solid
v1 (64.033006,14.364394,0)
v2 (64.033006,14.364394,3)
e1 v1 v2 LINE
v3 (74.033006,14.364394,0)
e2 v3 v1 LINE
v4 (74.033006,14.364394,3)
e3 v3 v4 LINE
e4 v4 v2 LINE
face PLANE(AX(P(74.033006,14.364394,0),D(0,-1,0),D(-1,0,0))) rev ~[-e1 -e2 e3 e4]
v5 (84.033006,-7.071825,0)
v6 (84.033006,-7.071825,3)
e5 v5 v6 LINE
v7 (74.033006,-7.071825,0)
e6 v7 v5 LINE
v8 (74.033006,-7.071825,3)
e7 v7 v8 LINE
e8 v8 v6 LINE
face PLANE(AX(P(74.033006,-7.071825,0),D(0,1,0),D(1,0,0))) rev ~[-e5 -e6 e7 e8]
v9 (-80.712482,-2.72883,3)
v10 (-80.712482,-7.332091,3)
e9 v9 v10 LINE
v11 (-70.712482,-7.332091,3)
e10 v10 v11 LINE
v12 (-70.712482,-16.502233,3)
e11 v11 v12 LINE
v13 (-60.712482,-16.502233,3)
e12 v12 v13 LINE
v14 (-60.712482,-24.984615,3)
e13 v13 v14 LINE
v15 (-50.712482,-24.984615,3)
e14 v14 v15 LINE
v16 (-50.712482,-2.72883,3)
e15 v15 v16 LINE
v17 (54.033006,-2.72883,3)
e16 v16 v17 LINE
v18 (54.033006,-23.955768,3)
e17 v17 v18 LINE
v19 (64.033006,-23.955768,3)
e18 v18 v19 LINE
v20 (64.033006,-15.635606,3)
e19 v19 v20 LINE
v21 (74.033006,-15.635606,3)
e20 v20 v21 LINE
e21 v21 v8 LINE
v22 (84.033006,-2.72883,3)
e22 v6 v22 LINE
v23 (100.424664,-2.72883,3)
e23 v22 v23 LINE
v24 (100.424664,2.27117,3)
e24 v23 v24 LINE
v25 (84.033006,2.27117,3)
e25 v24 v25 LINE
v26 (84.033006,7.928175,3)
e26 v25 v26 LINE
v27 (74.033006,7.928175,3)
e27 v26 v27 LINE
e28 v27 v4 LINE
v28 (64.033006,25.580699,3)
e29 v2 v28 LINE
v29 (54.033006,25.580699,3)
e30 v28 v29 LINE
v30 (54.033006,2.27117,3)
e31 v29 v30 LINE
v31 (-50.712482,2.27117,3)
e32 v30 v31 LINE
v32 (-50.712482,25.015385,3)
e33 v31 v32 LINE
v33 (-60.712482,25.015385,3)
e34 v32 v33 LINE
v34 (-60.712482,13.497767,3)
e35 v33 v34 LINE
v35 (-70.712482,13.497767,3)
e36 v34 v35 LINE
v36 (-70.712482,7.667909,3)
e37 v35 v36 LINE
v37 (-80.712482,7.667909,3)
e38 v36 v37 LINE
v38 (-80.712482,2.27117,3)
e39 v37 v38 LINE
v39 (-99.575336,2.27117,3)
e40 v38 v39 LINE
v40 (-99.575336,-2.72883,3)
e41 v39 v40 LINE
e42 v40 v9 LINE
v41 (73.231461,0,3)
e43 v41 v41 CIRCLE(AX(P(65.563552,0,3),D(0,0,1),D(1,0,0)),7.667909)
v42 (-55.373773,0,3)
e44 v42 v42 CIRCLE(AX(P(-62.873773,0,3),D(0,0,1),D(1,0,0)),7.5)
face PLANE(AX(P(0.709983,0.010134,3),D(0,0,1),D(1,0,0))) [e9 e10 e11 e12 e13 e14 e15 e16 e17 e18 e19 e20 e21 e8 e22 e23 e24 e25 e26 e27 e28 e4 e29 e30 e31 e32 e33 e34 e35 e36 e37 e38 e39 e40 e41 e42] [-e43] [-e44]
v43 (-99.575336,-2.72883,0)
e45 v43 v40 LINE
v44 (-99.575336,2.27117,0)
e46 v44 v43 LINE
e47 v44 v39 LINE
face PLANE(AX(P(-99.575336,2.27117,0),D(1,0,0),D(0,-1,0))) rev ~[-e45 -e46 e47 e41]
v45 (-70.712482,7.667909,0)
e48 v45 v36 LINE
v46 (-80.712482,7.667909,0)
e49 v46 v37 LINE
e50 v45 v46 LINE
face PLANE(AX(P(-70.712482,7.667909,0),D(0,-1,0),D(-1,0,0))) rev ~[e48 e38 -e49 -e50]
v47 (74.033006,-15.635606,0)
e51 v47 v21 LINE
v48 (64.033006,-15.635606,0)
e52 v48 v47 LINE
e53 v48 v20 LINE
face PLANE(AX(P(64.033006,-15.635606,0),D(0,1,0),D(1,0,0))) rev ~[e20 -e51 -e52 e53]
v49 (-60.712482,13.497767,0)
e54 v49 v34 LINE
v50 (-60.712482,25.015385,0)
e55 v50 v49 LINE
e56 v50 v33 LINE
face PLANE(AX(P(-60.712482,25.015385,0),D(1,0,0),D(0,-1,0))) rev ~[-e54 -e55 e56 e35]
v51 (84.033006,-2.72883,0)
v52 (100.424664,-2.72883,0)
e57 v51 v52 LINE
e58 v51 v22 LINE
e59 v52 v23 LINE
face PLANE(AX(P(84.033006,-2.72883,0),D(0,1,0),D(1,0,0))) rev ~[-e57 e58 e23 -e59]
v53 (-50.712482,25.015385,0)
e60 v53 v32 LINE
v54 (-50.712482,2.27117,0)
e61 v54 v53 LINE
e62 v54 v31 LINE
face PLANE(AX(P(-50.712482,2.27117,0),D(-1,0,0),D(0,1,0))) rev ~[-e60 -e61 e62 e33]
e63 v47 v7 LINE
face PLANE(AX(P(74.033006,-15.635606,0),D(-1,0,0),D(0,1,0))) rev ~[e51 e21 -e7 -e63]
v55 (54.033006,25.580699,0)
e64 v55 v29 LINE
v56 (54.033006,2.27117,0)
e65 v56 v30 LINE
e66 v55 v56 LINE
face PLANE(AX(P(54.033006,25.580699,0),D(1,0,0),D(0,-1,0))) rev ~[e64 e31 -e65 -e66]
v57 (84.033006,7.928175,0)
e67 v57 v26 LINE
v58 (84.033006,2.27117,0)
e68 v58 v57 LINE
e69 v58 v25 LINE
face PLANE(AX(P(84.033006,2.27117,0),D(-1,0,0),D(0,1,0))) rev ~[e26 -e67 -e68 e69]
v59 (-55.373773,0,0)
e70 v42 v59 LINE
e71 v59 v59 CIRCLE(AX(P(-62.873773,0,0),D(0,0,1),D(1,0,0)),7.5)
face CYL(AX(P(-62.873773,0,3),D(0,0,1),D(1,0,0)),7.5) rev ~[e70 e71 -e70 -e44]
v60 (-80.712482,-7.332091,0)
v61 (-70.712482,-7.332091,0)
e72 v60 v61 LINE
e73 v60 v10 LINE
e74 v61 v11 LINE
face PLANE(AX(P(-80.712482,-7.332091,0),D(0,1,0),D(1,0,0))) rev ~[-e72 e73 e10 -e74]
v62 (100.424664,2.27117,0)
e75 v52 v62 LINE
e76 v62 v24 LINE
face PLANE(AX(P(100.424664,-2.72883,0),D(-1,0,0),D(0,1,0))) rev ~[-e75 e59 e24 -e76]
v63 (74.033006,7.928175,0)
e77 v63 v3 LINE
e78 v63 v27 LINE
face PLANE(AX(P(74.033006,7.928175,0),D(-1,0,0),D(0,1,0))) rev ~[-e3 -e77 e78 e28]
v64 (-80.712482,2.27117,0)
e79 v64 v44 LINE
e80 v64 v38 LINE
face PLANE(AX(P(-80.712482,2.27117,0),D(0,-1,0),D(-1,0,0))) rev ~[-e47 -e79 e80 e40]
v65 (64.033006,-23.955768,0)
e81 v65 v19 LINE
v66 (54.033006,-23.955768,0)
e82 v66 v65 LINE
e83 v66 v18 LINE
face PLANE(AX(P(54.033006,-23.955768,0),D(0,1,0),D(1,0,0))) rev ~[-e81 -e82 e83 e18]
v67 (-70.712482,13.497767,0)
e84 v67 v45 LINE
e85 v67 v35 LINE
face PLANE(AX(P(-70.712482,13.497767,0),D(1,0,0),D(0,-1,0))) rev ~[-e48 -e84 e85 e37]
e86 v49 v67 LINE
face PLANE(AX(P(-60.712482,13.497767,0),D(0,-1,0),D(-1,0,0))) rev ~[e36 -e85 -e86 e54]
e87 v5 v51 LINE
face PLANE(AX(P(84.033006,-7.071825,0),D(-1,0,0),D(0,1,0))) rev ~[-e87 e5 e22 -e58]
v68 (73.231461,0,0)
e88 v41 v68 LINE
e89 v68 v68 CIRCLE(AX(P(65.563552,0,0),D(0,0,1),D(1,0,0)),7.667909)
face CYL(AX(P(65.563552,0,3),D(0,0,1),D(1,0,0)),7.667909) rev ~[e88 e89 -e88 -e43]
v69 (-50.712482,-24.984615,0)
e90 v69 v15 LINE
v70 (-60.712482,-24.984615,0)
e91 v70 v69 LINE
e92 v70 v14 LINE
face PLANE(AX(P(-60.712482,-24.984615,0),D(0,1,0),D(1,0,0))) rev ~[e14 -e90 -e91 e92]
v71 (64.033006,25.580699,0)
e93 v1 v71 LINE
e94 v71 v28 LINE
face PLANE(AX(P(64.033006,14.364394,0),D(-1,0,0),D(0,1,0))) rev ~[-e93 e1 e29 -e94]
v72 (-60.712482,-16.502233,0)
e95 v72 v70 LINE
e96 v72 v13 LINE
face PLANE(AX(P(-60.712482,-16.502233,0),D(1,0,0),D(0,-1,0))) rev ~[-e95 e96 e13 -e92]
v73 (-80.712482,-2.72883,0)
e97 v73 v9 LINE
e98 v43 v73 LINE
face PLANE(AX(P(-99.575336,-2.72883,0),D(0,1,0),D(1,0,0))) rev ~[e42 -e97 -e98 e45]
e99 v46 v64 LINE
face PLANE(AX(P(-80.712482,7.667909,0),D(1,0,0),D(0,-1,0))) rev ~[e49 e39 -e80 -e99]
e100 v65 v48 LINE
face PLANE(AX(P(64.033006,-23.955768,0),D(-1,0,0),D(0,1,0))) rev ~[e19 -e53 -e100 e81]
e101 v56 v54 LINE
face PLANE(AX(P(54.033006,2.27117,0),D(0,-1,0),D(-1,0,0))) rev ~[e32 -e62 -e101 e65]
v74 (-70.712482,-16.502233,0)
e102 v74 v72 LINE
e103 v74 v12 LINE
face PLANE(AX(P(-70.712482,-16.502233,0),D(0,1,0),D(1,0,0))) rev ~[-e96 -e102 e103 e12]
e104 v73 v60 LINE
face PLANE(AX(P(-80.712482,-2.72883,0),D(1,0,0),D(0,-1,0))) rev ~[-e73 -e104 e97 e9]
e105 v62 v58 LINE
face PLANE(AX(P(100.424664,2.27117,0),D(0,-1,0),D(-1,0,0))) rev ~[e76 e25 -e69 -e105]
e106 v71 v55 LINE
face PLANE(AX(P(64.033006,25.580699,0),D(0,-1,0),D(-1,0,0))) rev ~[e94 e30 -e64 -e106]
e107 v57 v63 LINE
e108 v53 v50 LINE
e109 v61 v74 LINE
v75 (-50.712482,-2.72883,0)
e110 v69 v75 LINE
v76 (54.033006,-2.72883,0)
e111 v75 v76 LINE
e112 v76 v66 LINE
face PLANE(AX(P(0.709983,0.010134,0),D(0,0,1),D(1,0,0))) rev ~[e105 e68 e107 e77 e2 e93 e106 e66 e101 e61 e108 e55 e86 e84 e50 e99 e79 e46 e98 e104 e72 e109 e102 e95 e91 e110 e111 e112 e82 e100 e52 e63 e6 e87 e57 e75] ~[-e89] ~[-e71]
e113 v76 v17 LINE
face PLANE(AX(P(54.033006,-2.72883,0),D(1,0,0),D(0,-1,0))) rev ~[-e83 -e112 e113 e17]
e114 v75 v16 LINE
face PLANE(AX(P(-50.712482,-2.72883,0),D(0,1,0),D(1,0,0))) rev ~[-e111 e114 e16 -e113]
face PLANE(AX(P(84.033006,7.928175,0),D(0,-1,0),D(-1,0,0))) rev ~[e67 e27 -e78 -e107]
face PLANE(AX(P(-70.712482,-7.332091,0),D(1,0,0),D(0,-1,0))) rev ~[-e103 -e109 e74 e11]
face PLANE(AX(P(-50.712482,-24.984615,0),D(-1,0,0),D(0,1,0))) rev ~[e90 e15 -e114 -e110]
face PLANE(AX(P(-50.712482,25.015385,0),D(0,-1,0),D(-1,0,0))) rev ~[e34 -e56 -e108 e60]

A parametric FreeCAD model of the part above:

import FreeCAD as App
import Part
import Sketcher
from FreeCAD import Vector
Q = App.Units.Quantity

doc = App.newDocument("Part")
body = doc.addObject("PartDesign::Body", "Body")

# Sketch on XY plane
sketch1 = body.newObject("Sketcher::SketchObject", "Sketch")
sketch1.AttachmentSupport = (doc.getObject("XY_Plane"), [""])
sketch1.MapMode = "FlatFace"
sketch1.addGeometry([
    Part.LineSegment(Vector(-80.7, 2.3, 0), Vector(-99.6, 2.3, 0)),  # 0
    Part.LineSegment(Vector(-99.6, 2.3, 0), Vector(-99.6, -2.7, 0)),  # 1
    Part.LineSegment(Vector(-99.6, -2.7, 0), Vector(-80.7, -2.7, 0)),  # 2
    Part.LineSegment(Vector(-80.7, -2.7, 0), Vector(-80.7, -7.3, 0)),  # 3
    Part.LineSegment(Vector(-80.7, -7.3, 0), Vector(-70.7, -7.3, 0)),  # 4
    Part.LineSegment(Vector(-70.7, -7.3, 0), Vector(-70.7, -16.5, 0)),  # 5
    Part.LineSegment(Vector(-70.7, -16.5, 0), Vector(-60.7, -16.5, 0)),  # 6
    Part.LineSegment(Vector(-60.7, -16.5, 0), Vector(-60.7, -25, 0)),  # 7
    Part.LineSegment(Vector(-60.7, -25, 0), Vector(-50.7, -25, 0)),  # 8
    Part.LineSegment(Vector(-50.7, -25, 0), Vector(-50.7, -2.7, 0)),  # 9
    Part.LineSegment(Vector(-50.7, -2.7, 0), Vector(54, -2.7, 0)),  # 10
    Part.LineSegment(Vector(54, -2.7, 0), Vector(54, -24, 0)),  # 11
    Part.LineSegment(Vector(54, -24, 0), Vector(64, -24, 0)),  # 12
    Part.LineSegment(Vector(64, -24, 0), Vector(64, -15.6, 0)),  # 13
    Part.LineSegment(Vector(64, -15.6, 0), Vector(74, -15.6, 0)),  # 14
    Part.LineSegment(Vector(74, -15.6, 0), Vector(74, -7.1, 0)),  # 15
    Part.LineSegment(Vector(74, -7.1, 0), Vector(84, -7.1, 0)),  # 16
    Part.LineSegment(Vector(84, -7.1, 0), Vector(84, -2.7, 0)),  # 17
    Part.LineSegment(Vector(84, -2.7, 0), Vector(100.4, -2.7, 0)),  # 18
    Part.LineSegment(Vector(100.4, -2.7, 0), Vector(100.4, 2.3, 0)),  # 19
    Part.LineSegment(Vector(100.4, 2.3, 0), Vector(84, 2.3, 0)),  # 20
    Part.LineSegment(Vector(84, 2.3, 0), Vector(84, 7.9, 0)),  # 21
    Part.LineSegment(Vector(84, 7.9, 0), Vector(74, 7.9, 0)),  # 22
    Part.LineSegment(Vector(74, 7.9, 0), Vector(74, 14.4, 0)),  # 23
    Part.LineSegment(Vector(74, 14.4, 0), Vector(64, 14.4, 0)),  # 24
    Part.LineSegment(Vector(64, 14.4, 0), Vector(64, 25.6, 0)),  # 25
    Part.LineSegment(Vector(64, 25.6, 0), Vector(54, 25.6, 0)),  # 26
    Part.LineSegment(Vector(54, 25.6, 0), Vector(54, 2.3, 0)),  # 27
    Part.LineSegment(Vector(54, 2.3, 0), Vector(-50.7, 2.3, 0)),  # 28
    Part.LineSegment(Vector(-50.7, 2.3, 0), Vector(-50.7, 25, 0)),  # 29
    Part.LineSegment(Vector(-50.7, 25, 0), Vector(-60.7, 25, 0)),  # 30
    Part.LineSegment(Vector(-60.7, 25, 0), Vector(-60.7, 13.5, 0)),  # 31
    Part.LineSegment(Vector(-60.7, 13.5, 0), Vector(-70.7, 13.5, 0)),  # 32
    Part.LineSegment(Vector(-70.7, 13.5, 0), Vector(-70.7, 7.7, 0)),  # 33
    Part.LineSegment(Vector(-70.7, 7.7, 0), Vector(-80.7, 7.7, 0)),  # 34
    Part.LineSegment(Vector(-80.7, 7.7, 0), Vector(-80.7, 2.3, 0)),  # 35
], False)
sketch1.addConstraint([
    Sketcher.Constraint("Coincident", 0, 2, 1, 1),
    Sketcher.Constraint("Coincident", 1, 2, 2, 1),
    Sketcher.Constraint("Coincident", 2, 2, 3, 1),
    Sketcher.Constraint("Coincident", 3, 2, 4, 1),
    Sketcher.Constraint("Coincident", 4, 2, 5, 1),
    Sketcher.Constraint("Coincident", 5, 2, 6, 1),
    Sketcher.Constraint("Coincident", 6, 2, 7, 1),
    Sketcher.Constraint("Coincident", 7, 2, 8, 1),
    Sketcher.Constraint("Coincident", 8, 2, 9, 1),
    Sketcher.Constraint("Coincident", 9, 2, 10, 1),
    Sketcher.Constraint("Coincident", 10, 2, 11, 1),
    Sketcher.Constraint("Coincident", 11, 2, 12, 1),
    Sketcher.Constraint("Coincident", 12, 2, 13, 1),
    Sketcher.Constraint("Coincident", 13, 2, 14, 1),
    Sketcher.Constraint("Coincident", 14, 2, 15, 1),
    Sketcher.Constraint("Coincident", 15, 2, 16, 1),
    Sketcher.Constraint("Coincident", 16, 2, 17, 1),
    Sketcher.Constraint("Coincident", 17, 2, 18, 1),
    Sketcher.Constraint("Coincident", 18, 2, 19, 1),
    Sketcher.Constraint("Coincident", 19, 2, 20, 1),
    Sketcher.Constraint("Coincident", 20, 2, 21, 1),
    Sketcher.Constraint("Coincident", 21, 2, 22, 1),
    Sketcher.Constraint("Coincident", 22, 2, 23, 1),
    Sketcher.Constraint("Coincident", 23, 2, 24, 1),
    Sketcher.Constraint("Coincident", 24, 2, 25, 1),
    Sketcher.Constraint("Coincident", 25, 2, 26, 1),
    Sketcher.Constraint("Coincident", 26, 2, 27, 1),
    Sketcher.Constraint("Coincident", 27, 2, 28, 1),
    Sketcher.Constraint("Coincident", 28, 2, 29, 1),
    Sketcher.Constraint("Coincident", 29, 2, 30, 1),
    Sketcher.Constraint("Coincident", 30, 2, 31, 1),
    Sketcher.Constraint("Coincident", 31, 2, 32, 1),
    Sketcher.Constraint("Coincident", 32, 2, 33, 1),
    Sketcher.Constraint("Coincident", 33, 2, 34, 1),
    Sketcher.Constraint("Coincident", 34, 2, 35, 1),
    Sketcher.Constraint("Coincident", 35, 2, 0, 1),
    Sketcher.Constraint("Horizontal", 0),
    Sketcher.Constraint("Vertical", 1),
    Sketcher.Constraint("Horizontal", 2),
    Sketcher.Constraint("Vertical", 3),
    Sketcher.Constraint("Horizontal", 4),
    Sketcher.Constraint("Vertical", 5),
    Sketcher.Constraint("Horizontal", 6),
    Sketcher.Constraint("Vertical", 7),
    Sketcher.Constraint("Horizontal", 8),
    Sketcher.Constraint("Vertical", 9),
    Sketcher.Constraint("Horizontal", 10),
    Sketcher.Constraint("Vertical", 11),
    Sketcher.Constraint("Horizontal", 12),
    Sketcher.Constraint("Vertical", 13),
    Sketcher.Constraint("Horizontal", 14),
    Sketcher.Constraint("Vertical", 15),
    Sketcher.Constraint("Horizontal", 16),
    Sketcher.Constraint("Vertical", 17),
    Sketcher.Constraint("Horizontal", 18),
    Sketcher.Constraint("Vertical", 19),
    Sketcher.Constraint("Horizontal", 20),
    Sketcher.Constraint("Vertical", 21),
    Sketcher.Constraint("Horizontal", 22),
    Sketcher.Constraint("Vertical", 23),
    Sketcher.Constraint("Horizontal", 24),
    Sketcher.Constraint("Vertical", 25),
    Sketcher.Constraint("Horizontal", 26),
    Sketcher.Constraint("Vertical", 27),
    Sketcher.Constraint("Horizontal", 28),
    Sketcher.Constraint("Vertical", 29),
    Sketcher.Constraint("Horizontal", 30),
    Sketcher.Constraint("Vertical", 31),
    Sketcher.Constraint("Horizontal", 32),
    Sketcher.Constraint("Vertical", 33),
    Sketcher.Constraint("Horizontal", 34),
    Sketcher.Constraint("Vertical", 35),
    Sketcher.Constraint("Horizontal", 2, 2, 9, 2),
    Sketcher.Constraint("Horizontal", 10, 2, 17, 2),
    Sketcher.Constraint("Horizontal", 0, 2, 19, 2),
    Sketcher.Constraint("Horizontal", 20, 2, 27, 2),
    Sketcher.Constraint("Vertical", 17, 2, 20, 2),
    Sketcher.Constraint("Vertical", 15, 2, 22, 2),
    Sketcher.Constraint("Vertical", 13, 2, 24, 2),
    Sketcher.Constraint("Vertical", 11, 2, 26, 2),
    Sketcher.Constraint("Vertical", 9, 2, 28, 2),
    Sketcher.Constraint("Vertical", 7, 2, 30, 2),
    Sketcher.Constraint("Vertical", 5, 2, 32, 2),
    Sketcher.Constraint("Vertical", 3, 2, 34, 2),
    Sketcher.Constraint("Equal", 4, 6),
    Sketcher.Constraint("Equal", 6, 8),
    Sketcher.Constraint("Equal", 8, 12),
    Sketcher.Constraint("Equal", 12, 14),
    Sketcher.Constraint("Equal", 14, 16),
    Sketcher.Constraint("DistanceX", 4, 1, 4, 2, Q("10 mm")),
    Sketcher.Constraint("DistanceY", 1, 2, 1, 1, Q("5 mm")),
    Sketcher.Constraint("DistanceY", 16, 2, 21, 2, Q("15 mm")),
    Sketcher.Constraint("DistanceY", 4, 2, 33, 2, Q("15 mm")),
    Sketcher.Constraint("DistanceX", 18, 1, 18, 2, Q("16.391658 mm")),
    Sketcher.Constraint("DistanceY", 3, 2, 3, 1, Q("4.603261 mm")),
    Sketcher.Constraint("DistanceY", 11, 2, 11, 1, Q("21.226938 mm")),
    Sketcher.Constraint("DistanceY", 15, 1, 15, 2, Q("8.563781 mm")),
    Sketcher.Constraint("DistanceY", 23, 1, 23, 2, Q("6.436219 mm")),
    Sketcher.Constraint("DistanceY", 27, 2, 27, 1, Q("23.309529 mm")),
    Sketcher.Constraint("DistanceY", -1, 1, 25, 2, Q("25.580699 mm")),
    Sketcher.Constraint("DistanceX", 0, 2, 0, 1, Q("18.862854 mm")),
    Sketcher.Constraint("DistanceX", 10, 1, 10, 2, Q("104.745488 mm")),
    Sketcher.Constraint("DistanceY", 5, 2, 5, 1, Q("9.170142 mm")),
    Sketcher.Constraint("DistanceY", 7, 2, 7, 1, Q("8.482382 mm")),
    Sketcher.Constraint("DistanceY", 13, 1, 13, 2, Q("8.320162 mm")),
    Sketcher.Constraint("DistanceY", 29, 1, 29, 2, Q("22.744215 mm")),
    Sketcher.Constraint("DistanceY", 31, 2, 31, 1, Q("11.517618 mm")),
    Sketcher.Constraint("DistanceX", 2, 2, -1, 1, Q("80.712482 mm")),
])
pad1 = body.newObject("PartDesign::Pad", "Pad")
pad1.Profile = sketch1
pad1.Length = 3

# Sketch on XY plane
sketch2 = body.newObject("Sketcher::SketchObject", "Sketch001")
sketch2.AttachmentSupport = (doc.getObject("XY_Plane"), [""])
sketch2.MapMode = "FlatFace"
sketch2.AttachmentOffset = App.Placement(Vector(0, 0, 3), App.Rotation())
sketch2.addGeometry([
    Part.Circle(Vector(-63, 0, 0), Vector(0, 0, 1), 8),
    Part.Circle(Vector(66, 0, 0), Vector(0, 0, 1), 8),
], False)
sketch2.addConstraint([
    Sketcher.Constraint("PointOnObject", 0, 3, -1),
    Sketcher.Constraint("PointOnObject", 1, 3, -1),
    Sketcher.Constraint("Diameter", 0, Q("15 mm")),
    Sketcher.Constraint("Diameter", 1, Q("15.335818 mm")),
    Sketcher.Constraint("DistanceX", -1, 1, 1, 3, Q("65.563552 mm")),
    Sketcher.Constraint("DistanceX", 0, 3, -1, 1, Q("62.873773 mm")),
])
pocket1 = body.newObject("PartDesign::Pocket", "Pocket")
pocket1.Profile = sketch2
pocket1.Type = "ThroughAll"

doc.recompute()
